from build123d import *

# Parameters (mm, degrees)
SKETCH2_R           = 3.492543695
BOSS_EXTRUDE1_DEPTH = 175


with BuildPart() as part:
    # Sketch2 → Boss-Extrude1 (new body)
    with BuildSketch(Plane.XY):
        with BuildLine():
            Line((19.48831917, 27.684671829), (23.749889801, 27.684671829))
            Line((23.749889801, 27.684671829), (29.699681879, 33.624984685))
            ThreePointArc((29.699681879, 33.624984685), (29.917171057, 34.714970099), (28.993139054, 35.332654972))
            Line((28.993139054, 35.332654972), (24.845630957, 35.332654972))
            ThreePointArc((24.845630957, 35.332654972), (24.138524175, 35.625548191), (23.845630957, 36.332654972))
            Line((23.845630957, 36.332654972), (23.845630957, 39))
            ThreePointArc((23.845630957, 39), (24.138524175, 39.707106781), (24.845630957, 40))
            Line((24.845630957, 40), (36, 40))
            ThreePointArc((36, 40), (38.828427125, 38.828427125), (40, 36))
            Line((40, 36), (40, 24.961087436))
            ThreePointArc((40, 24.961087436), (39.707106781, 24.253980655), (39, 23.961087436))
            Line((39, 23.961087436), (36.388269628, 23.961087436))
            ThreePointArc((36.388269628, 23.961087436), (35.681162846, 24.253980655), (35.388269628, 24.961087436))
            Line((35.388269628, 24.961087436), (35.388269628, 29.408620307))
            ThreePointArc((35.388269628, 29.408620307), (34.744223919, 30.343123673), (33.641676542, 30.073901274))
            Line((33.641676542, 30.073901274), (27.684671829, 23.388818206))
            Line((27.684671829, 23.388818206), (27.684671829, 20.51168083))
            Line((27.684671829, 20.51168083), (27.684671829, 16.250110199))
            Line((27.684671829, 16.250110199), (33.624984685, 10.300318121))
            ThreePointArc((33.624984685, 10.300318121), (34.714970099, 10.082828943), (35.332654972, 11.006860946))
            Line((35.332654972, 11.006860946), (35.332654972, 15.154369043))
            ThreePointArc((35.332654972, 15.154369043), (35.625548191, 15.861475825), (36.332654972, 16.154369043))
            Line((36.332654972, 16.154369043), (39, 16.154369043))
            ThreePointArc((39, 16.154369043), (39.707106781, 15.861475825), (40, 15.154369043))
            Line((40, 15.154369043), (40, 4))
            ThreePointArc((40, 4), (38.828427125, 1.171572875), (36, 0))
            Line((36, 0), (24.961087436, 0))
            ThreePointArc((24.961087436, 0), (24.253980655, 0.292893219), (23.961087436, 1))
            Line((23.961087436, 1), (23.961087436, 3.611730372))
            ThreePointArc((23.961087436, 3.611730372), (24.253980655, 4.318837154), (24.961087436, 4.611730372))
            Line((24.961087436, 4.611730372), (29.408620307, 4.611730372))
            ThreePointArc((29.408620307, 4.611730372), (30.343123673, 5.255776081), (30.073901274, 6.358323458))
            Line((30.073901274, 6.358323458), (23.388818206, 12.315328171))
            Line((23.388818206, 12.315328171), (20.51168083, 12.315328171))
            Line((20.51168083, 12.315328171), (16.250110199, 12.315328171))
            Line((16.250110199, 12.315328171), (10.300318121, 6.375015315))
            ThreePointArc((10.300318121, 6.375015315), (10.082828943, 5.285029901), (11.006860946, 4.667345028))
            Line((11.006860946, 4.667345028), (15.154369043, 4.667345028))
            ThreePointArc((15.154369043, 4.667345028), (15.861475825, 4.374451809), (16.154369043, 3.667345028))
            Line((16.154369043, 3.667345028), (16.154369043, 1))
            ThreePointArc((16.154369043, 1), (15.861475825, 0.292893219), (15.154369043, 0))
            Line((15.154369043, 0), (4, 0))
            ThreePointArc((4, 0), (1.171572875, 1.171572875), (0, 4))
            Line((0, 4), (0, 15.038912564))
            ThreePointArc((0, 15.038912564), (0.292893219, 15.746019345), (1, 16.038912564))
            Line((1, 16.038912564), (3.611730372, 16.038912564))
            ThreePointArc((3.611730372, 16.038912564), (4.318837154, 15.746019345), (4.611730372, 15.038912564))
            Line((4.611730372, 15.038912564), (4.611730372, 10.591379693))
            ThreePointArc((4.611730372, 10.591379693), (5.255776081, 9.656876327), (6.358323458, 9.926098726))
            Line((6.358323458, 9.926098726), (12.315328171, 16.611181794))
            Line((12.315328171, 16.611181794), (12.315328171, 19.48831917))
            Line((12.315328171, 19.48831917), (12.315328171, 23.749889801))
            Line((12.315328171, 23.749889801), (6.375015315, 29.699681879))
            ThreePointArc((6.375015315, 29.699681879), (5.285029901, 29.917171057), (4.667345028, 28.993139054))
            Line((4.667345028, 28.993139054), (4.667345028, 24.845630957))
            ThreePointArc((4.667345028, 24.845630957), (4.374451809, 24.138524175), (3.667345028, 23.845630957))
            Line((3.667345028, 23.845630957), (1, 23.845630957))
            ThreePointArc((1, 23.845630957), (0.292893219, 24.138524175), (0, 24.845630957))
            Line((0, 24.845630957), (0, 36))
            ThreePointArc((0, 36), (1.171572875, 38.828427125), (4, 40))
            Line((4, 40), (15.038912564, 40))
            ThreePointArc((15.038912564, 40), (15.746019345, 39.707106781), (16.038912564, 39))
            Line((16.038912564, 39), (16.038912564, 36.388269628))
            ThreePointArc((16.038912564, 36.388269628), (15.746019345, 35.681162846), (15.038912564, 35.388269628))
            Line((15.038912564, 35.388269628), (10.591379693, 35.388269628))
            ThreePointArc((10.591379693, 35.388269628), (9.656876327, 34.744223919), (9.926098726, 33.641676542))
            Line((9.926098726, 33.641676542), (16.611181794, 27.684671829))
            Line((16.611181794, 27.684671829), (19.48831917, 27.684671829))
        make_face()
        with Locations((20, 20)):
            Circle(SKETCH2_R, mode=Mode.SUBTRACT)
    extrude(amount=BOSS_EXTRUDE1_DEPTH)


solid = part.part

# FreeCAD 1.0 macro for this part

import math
import FreeCAD as App
import Part
import Sketcher

V = App.Vector
Q = App.Units.Quantity

doc = App.newDocument("Part")
body = doc.addObject("PartDesign::Body", "Body")

# Sketch on XY plane
sketch1 = body.newObject("Sketcher::SketchObject", "Sketch")
sketch1.AttachmentSupport = (doc.getObject("XY_Plane"), [""])
sketch1.MapMode = "FlatFace"
sketch1.addGeometry([
    Part.LineSegment(V(29.699682, 33.624985, 0), V(23.74989, 27.684672, 0)),  # 0
    Part.LineSegment(V(23.74989, 27.684672, 0), V(16.611182, 27.684672, 0)),  # 1
    Part.LineSegment(V(16.611182, 27.684672, 0), V(9.926099, 33.641677, 0)),  # 2
    Part.ArcOfCircle(Part.Circle(V(10.59138, 34.38827, 0), V(0, 0, 1), 1), math.radians(90), math.radians(228.296116)),  # 3
    Part.LineSegment(V(10.59138, 35.38827, 0), V(15.038913, 35.38827, 0)),  # 4
    Part.ArcOfCircle(Part.Circle(V(15.038913, 36.38827, 0), V(0, 0, 1), 1), math.radians(-90), math.radians(0)),  # 5
    Part.LineSegment(V(16.038913, 36.38827, 0), V(16.038913, 39, 0)),  # 6
    Part.ArcOfCircle(Part.Circle(V(15.038913, 39, 0), V(0, 0, 1), 1), math.radians(0), math.radians(90)),  # 7
    Part.LineSegment(V(15.038913, 40, 0), V(4, 40, 0)),  # 8
    Part.ArcOfCircle(Part.Circle(V(4, 36, 0), V(0, 0, 1), 4), math.radians(90), math.radians(180)),  # 9
    Part.LineSegment(V(0, 36, 0), V(0, 24.845631, 0)),  # 10
    Part.ArcOfCircle(Part.Circle(V(1, 24.845631, 0), V(0, 0, 1), 1), math.radians(180), math.radians(270)),  # 11
    Part.LineSegment(V(1, 23.845631, 0), V(3.667345, 23.845631, 0)),  # 12
    Part.ArcOfCircle(Part.Circle(V(3.667345, 24.845631, 0), V(0, 0, 1), 1), math.radians(-90), math.radians(0)),  # 13
    Part.LineSegment(V(4.667345, 24.845631, 0), V(4.667345, 28.993139, 0)),  # 14
    Part.ArcOfCircle(Part.Circle(V(5.667345, 28.993139, 0), V(0, 0, 1), 1), math.radians(44.954322), math.radians(180)),  # 15
    Part.LineSegment(V(6.375015, 29.699682, 0), V(12.315328, 23.74989, 0)),  # 16
    Part.LineSegment(V(12.315328, 23.74989, 0), V(12.315328, 16.611182, 0)),  # 17
    Part.LineSegment(V(12.315328, 16.611182, 0), V(6.358323, 9.926099, 0)),  # 18
    Part.ArcOfCircle(Part.Circle(V(5.61173, 10.59138, 0), V(0, 0, 1), 1), math.radians(-180), math.radians(-41.703884)),  # 19
    Part.LineSegment(V(4.61173, 10.59138, 0), V(4.61173, 15.038913, 0)),  # 20
    Part.ArcOfCircle(Part.Circle(V(3.61173, 15.038913, 0), V(0, 0, 1), 1), math.radians(0), math.radians(90)),  # 21
    Part.LineSegment(V(3.61173, 16.038913, 0), V(1, 16.038913, 0)),  # 22
    Part.ArcOfCircle(Part.Circle(V(1, 15.038913, 0), V(0, 0, 1), 1), math.radians(90), math.radians(180)),  # 23
    Part.LineSegment(V(0, 15.038913, 0), V(0, 4, 0)),  # 24
    Part.ArcOfCircle(Part.Circle(V(4, 4, 0), V(0, 0, 1), 4), math.radians(180), math.radians(270)),  # 25
    Part.LineSegment(V(4, 0, 0), V(15.154369, 0, 0)),  # 26
    Part.ArcOfCircle(Part.Circle(V(15.154369, 1, 0), V(0, 0, 1), 1), math.radians(-90), math.radians(0)),  # 27
    Part.LineSegment(V(16.154369, 1, 0), V(16.154369, 3.667345, 0)),  # 28
    Part.ArcOfCircle(Part.Circle(V(15.154369, 3.667345, 0), V(0, 0, 1), 1), math.radians(0), math.radians(90)),  # 29
    Part.LineSegment(V(15.154369, 4.667345, 0), V(11.006861, 4.667345, 0)),  # 30
    Part.ArcOfCircle(Part.Circle(V(11.006861, 5.667345, 0), V(0, 0, 1), 1), math.radians(134.954322), math.radians(270)),  # 31
    Part.LineSegment(V(10.300318, 6.375015, 0), V(16.25011, 12.315328, 0)),  # 32
    Part.LineSegment(V(16.25011, 12.315328, 0), V(23.388818, 12.315328, 0)),  # 33
    Part.LineSegment(V(23.388818, 12.315328, 0), V(30.073901, 6.358323, 0)),  # 34
    Part.ArcOfCircle(Part.Circle(V(29.40862, 5.61173, 0), V(0, 0, 1), 1), math.radians(-90), math.radians(48.296116)),  # 35
    Part.LineSegment(V(29.40862, 4.61173, 0), V(24.961087, 4.61173, 0)),  # 36
    Part.ArcOfCircle(Part.Circle(V(24.961087, 3.61173, 0), V(0, 0, 1), 1), math.radians(90), math.radians(180)),  # 37
    Part.LineSegment(V(23.961087, 3.61173, 0), V(23.961087, 1, 0)),  # 38
    Part.ArcOfCircle(Part.Circle(V(24.961087, 1, 0), V(0, 0, 1), 1), math.radians(-180), math.radians(-90)),  # 39
    Part.LineSegment(V(24.961087, 0, 0), V(36, 0, 0)),  # 40
    Part.ArcOfCircle(Part.Circle(V(36, 4, 0), V(0, 0, 1), 4), math.radians(-90), math.radians(0)),  # 41
    Part.LineSegment(V(40, 4, 0), V(40, 15.154369, 0)),  # 42
    Part.ArcOfCircle(Part.Circle(V(39, 15.154369, 0), V(0, 0, 1), 1), math.radians(0), math.radians(90)),  # 43
    Part.LineSegment(V(39, 16.154369, 0), V(36.332655, 16.154369, 0)),  # 44
    Part.ArcOfCircle(Part.Circle(V(36.332655, 15.154369, 0), V(0, 0, 1), 1), math.radians(90), math.radians(180)),  # 45
    Part.LineSegment(V(35.332655, 15.154369, 0), V(35.332655, 11.006861, 0)),  # 46
    Part.ArcOfCircle(Part.Circle(V(34.332655, 11.006861, 0), V(0, 0, 1), 1), math.radians(-135.045678), math.radians(0)),  # 47
    Part.LineSegment(V(33.624985, 10.300318, 0), V(27.684672, 16.25011, 0)),  # 48
    Part.LineSegment(V(27.684672, 16.25011, 0), V(27.684672, 23.388818, 0)),  # 49
    Part.LineSegment(V(27.684672, 23.388818, 0), V(33.641677, 30.073901, 0)),  # 50
    Part.ArcOfCircle(Part.Circle(V(34.38827, 29.40862, 0), V(0, 0, 1), 1), math.radians(0), math.radians(138.296116)),  # 51
    Part.LineSegment(V(35.38827, 29.40862, 0), V(35.38827, 24.961087, 0)),  # 52
    Part.ArcOfCircle(Part.Circle(V(36.38827, 24.961087, 0), V(0, 0, 1), 1), math.radians(180), math.radians(270)),  # 53
    Part.LineSegment(V(36.38827, 23.961087, 0), V(39, 23.961087, 0)),  # 54
    Part.ArcOfCircle(Part.Circle(V(39, 24.961087, 0), V(0, 0, 1), 1), math.radians(-90), math.radians(0)),  # 55
    Part.LineSegment(V(40, 24.961087, 0), V(40, 36, 0)),  # 56
    Part.ArcOfCircle(Part.Circle(V(36, 36, 0), V(0, 0, 1), 4), math.radians(0), math.radians(90)),  # 57
    Part.LineSegment(V(36, 40, 0), V(24.845631, 40, 0)),  # 58
    Part.ArcOfCircle(Part.Circle(V(24.845631, 39, 0), V(0, 0, 1), 1), math.radians(90), math.radians(180)),  # 59
    Part.LineSegment(V(23.845631, 39, 0), V(23.845631, 36.332655, 0)),  # 60
    Part.ArcOfCircle(Part.Circle(V(24.845631, 36.332655, 0), V(0, 0, 1), 1), math.radians(180), math.radians(270)),  # 61
    Part.LineSegment(V(24.845631, 35.332655, 0), V(28.993139, 35.332655, 0)),  # 62
    Part.ArcOfCircle(Part.Circle(V(28.993139, 34.332655, 0), V(0, 0, 1), 1), math.radians(-45.045678), math.radians(90)),  # 63
    Part.Circle(V(20, 20, 0), V(0, 0, 1), 3.492544),  # 64
], False)
sketch1.addConstraint([
    Sketcher.Constraint("Coincident", 0, 2, 1, 1),
    Sketcher.Constraint("Coincident", 1, 2, 2, 1),
    Sketcher.Constraint("Tangent", 2, 2, 3, 2),
    Sketcher.Constraint("Tangent", 3, 1, 4, 1),
    Sketcher.Constraint("Tangent", 4, 2, 5, 1),
    Sketcher.Constraint("Tangent", 5, 2, 6, 1),
    Sketcher.Constraint("Tangent", 6, 2, 7, 1),
    Sketcher.Constraint("Tangent", 7, 2, 8, 1),
    Sketcher.Constraint("Tangent", 8, 2, 9, 1),
    Sketcher.Constraint("Tangent", 9, 2, 10, 1),
    Sketcher.Constraint("Tangent", 10, 2, 11, 1),
    Sketcher.Constraint("Tangent", 11, 2, 12, 1),
    Sketcher.Constraint("Tangent", 12, 2, 13, 1),
    Sketcher.Constraint("Tangent", 13, 2, 14, 1),
    Sketcher.Constraint("Tangent", 14, 2, 15, 2),
    Sketcher.Constraint("Tangent", 15, 1, 16, 1),
    Sketcher.Constraint("Coincident", 16, 2, 17, 1),
    Sketcher.Constraint("Coincident", 17, 2, 18, 1),
    Sketcher.Constraint("Tangent", 18, 2, 19, 2),
    Sketcher.Constraint("Tangent", 19, 1, 20, 1),
    Sketcher.Constraint("Tangent", 20, 2, 21, 1),
    Sketcher.Constraint("Tangent", 21, 2, 22, 1),
    Sketcher.Constraint("Tangent", 22, 2, 23, 1),
    Sketcher.Constraint("Tangent", 23, 2, 24, 1),
    Sketcher.Constraint("Tangent", 24, 2, 25, 1),
    Sketcher.Constraint("Tangent", 25, 2, 26, 1),
    Sketcher.Constraint("Tangent", 26, 2, 27, 1),
    Sketcher.Constraint("Tangent", 27, 2, 28, 1),
    Sketcher.Constraint("Tangent", 28, 2, 29, 1),
    Sketcher.Constraint("Tangent", 29, 2, 30, 1),
    Sketcher.Constraint("Tangent", 30, 2, 31, 2),
    Sketcher.Constraint("Tangent", 31, 1, 32, 1),
    Sketcher.Constraint("Coincident", 32, 2, 33, 1),
    Sketcher.Constraint("Coincident", 33, 2, 34, 1),
    Sketcher.Constraint("Tangent", 34, 2, 35, 2),
    Sketcher.Constraint("Tangent", 35, 1, 36, 1),
    Sketcher.Constraint("Tangent", 36, 2, 37, 1),
    Sketcher.Constraint("Tangent", 37, 2, 38, 1),
    Sketcher.Constraint("Tangent", 38, 2, 39, 1),
    Sketcher.Constraint("Tangent", 39, 2, 40, 1),
    Sketcher.Constraint("Tangent", 40, 2, 41, 1),
    Sketcher.Constraint("Tangent", 41, 2, 42, 1),
    Sketcher.Constraint("Tangent", 42, 2, 43, 1),
    Sketcher.Constraint("Tangent", 43, 2, 44, 1),
    Sketcher.Constraint("Tangent", 44, 2, 45, 1),
    Sketcher.Constraint("Tangent", 45, 2, 46, 1),
    Sketcher.Constraint("Tangent", 46, 2, 47, 2),
    Sketcher.Constraint("Tangent", 47, 1, 48, 1),
    Sketcher.Constraint("Coincident", 48, 2, 49, 1),
    Sketcher.Constraint("Coincident", 49, 2, 50, 1),
    Sketcher.Constraint("Tangent", 50, 2, 51, 2),
    Sketcher.Constraint("Tangent", 51, 1, 52, 1),
    Sketcher.Constraint("Tangent", 52, 2, 53, 1),
    Sketcher.Constraint("Tangent", 53, 2, 54, 1),
    Sketcher.Constraint("Tangent", 54, 2, 55, 1),
    Sketcher.Constraint("Tangent", 55, 2, 56, 1),
    Sketcher.Constraint("Tangent", 56, 2, 57, 1),
    Sketcher.Constraint("Tangent", 57, 2, 58, 1),
    Sketcher.Constraint("Tangent", 58, 2, 59, 1),
    Sketcher.Constraint("Tangent", 59, 2, 60, 1),
    Sketcher.Constraint("Tangent", 60, 2, 61, 1),
    Sketcher.Constraint("Tangent", 61, 2, 62, 1),
    Sketcher.Constraint("Tangent", 62, 2, 63, 2),
    Sketcher.Constraint("Tangent", 63, 1, 0, 1),
    Sketcher.Constraint("Horizontal", 1),
    Sketcher.Constraint("Horizontal", 4),
    Sketcher.Constraint("Vertical", 6),
    Sketcher.Constraint("Horizontal", 8),
    Sketcher.Constraint("Vertical", 10),
    Sketcher.Constraint("Horizontal", 12),
    Sketcher.Constraint("Vertical", 14),
    Sketcher.Constraint("Vertical", 17),
    Sketcher.Constraint("Vertical", 20),
    Sketcher.Constraint("Horizontal", 22),
    Sketcher.Constraint("Vertical", 24),
    Sketcher.Constraint("Horizontal", 26),
    Sketcher.Constraint("Vertical", 28),
    Sketcher.Constraint("Horizontal", 30),
    Sketcher.Constraint("Horizontal", 33),
    Sketcher.Constraint("Horizontal", 36),
    Sketcher.Constraint("Vertical", 38),
    Sketcher.Constraint("Horizontal", 40),
    Sketcher.Constraint("Vertical", 42),
    Sketcher.Constraint("Horizontal", 44),
    Sketcher.Constraint("Vertical", 46),
    Sketcher.Constraint("Vertical", 49),
    Sketcher.Constraint("Vertical", 52),
    Sketcher.Constraint("Horizontal", 54),
    Sketcher.Constraint("Vertical", 56),
    Sketcher.Constraint("Horizontal", 58),
    Sketcher.Constraint("Vertical", 60),
    Sketcher.Constraint("Horizontal", 62),
    Sketcher.Constraint("Equal", 3, 5),
    Sketcher.Constraint("Equal", 5, 7),
    Sketcher.Constraint("Equal", 7, 11),
    Sketcher.Constraint("Equal", 11, 13),
    Sketcher.Constraint("Equal", 13, 15),
    Sketcher.Constraint("Equal", 15, 19),
    Sketcher.Constraint("Equal", 19, 21),
    Sketcher.Constraint("Equal", 21, 23),
    Sketcher.Constraint("Equal", 9, 25),
    Sketcher.Constraint("Equal", 23, 27),
    Sketcher.Constraint("Equal", 27, 29),
    Sketcher.Constraint("Equal", 29, 31),
    Sketcher.Constraint("Equal", 31, 35),
    Sketcher.Constraint("Equal", 35, 37),
    Sketcher.Constraint("Equal", 37, 39),
    Sketcher.Constraint("Equal", 25, 41),
    Sketcher.Constraint("Equal", 39, 43),
    Sketcher.Constraint("Equal", 43, 45),
    Sketcher.Constraint("Equal", 45, 47),
    Sketcher.Constraint("Equal", 47, 51),
    Sketcher.Constraint("Equal", 51, 53),
    Sketcher.Constraint("Equal", 53, 55),
    Sketcher.Constraint("Equal", 41, 57),
    Sketcher.Constraint("Equal", 55, 59),
    Sketcher.Constraint("Equal", 59, 61),
    Sketcher.Constraint("Equal", 61, 63),
    Sketcher.Constraint("PointOnObject", 9, 2, -2),
    Sketcher.Constraint("PointOnObject", 23, 2, -2),
    Sketcher.Constraint("PointOnObject", 25, 2, -1),
    Sketcher.Constraint("PointOnObject", 39, 2, -1),
    Sketcher.Constraint("Perpendicular", 0, 16),
    Sketcher.Constraint("Perpendicular", 2, 18),
    Sketcher.Constraint("Perpendicular", 16, 32),
    Sketcher.Constraint("Perpendicular", 18, 34),
    Sketcher.Constraint("Perpendicular", 32, 48),
    Sketcher.Constraint("Perpendicular", 34, 50),
    Sketcher.Constraint("Horizontal", 9, 3, 57, 3),
    Sketcher.Constraint("Vertical", 43, 3, 55, 3),
    Sketcher.Constraint("Equal", 1, 33),
    Sketcher.Constraint("Equal", 4, 36),
    Sketcher.Constraint("Equal", 8, 40),
    Sketcher.Constraint("Equal", 12, 44),
    Sketcher.Constraint("Equal", 22, 54),
    Sketcher.Constraint("Equal", 26, 58),
    Sketcher.Constraint("Equal", 30, 62),
    Sketcher.Constraint("Equal", 54, 6),
    Sketcher.Constraint("Equal", 58, 10),
    Sketcher.Constraint("Equal", 62, 14),
    Sketcher.Constraint("Equal", 33, 17),
    Sketcher.Constraint("Equal", 36, 20),
    Sketcher.Constraint("Equal", 40, 24),
    Sketcher.Constraint("Equal", 44, 28),
    Sketcher.Constraint("Equal", 6, 38),
    Sketcher.Constraint("Equal", 10, 42),
    Sketcher.Constraint("Equal", 14, 46),
    Sketcher.Constraint("Equal", 17, 49),
    Sketcher.Constraint("Equal", 20, 52),
    Sketcher.Constraint("Equal", 24, 56),
    Sketcher.Constraint("Equal", 28, 60),
    Sketcher.Constraint("Equal", 0, 16),
    Sketcher.Constraint("Radius", 3, Q("1 mm")),
    Sketcher.Constraint("Radius", 9, Q("4 mm")),
    Sketcher.Constraint("DistanceY", -1, 1, 7, 3, Q("39 mm")),
    Sketcher.Constraint("DistanceX", -1, 1, 64, 3, Q("20 mm")),
    Sketcher.Constraint("DistanceY", -1, 1, 64, 3, Q("20 mm")),
    Sketcher.Constraint("Diameter", 64, Q("6.985087 mm")),
    Sketcher.Constraint("DistanceX", 1, 2, 1, 1, Q("7.138708 mm")),
    Sketcher.Constraint("DistanceX", 22, 2, 22, 1, Q("2.61173 mm")),
    Sketcher.Constraint("DistanceX", 26, 1, 26, 2, Q("11.154369 mm")),
    Sketcher.Constraint("DistanceX", 30, 2, 30, 1, Q("4.147508 mm")),
    Sketcher.Constraint("DistanceX", -1, 1, 2, 2, Q("9.926099 mm")),
    Sketcher.Constraint("Distance", 2, Q("8.954119 mm")),
    Sketcher.Constraint("DistanceX", 4, 1, 4, 2, Q("4.447533 mm")),
    Sketcher.Constraint("DistanceX", 8, 2, 8, 1, Q("11.038913 mm")),
    Sketcher.Constraint("DistanceX", 12, 1, 12, 2, Q("2.667345 mm")),
])
pad1 = body.newObject("PartDesign::Pad", "Pad")
pad1.Profile = sketch1
pad1.Length = 175

doc.recompute()
